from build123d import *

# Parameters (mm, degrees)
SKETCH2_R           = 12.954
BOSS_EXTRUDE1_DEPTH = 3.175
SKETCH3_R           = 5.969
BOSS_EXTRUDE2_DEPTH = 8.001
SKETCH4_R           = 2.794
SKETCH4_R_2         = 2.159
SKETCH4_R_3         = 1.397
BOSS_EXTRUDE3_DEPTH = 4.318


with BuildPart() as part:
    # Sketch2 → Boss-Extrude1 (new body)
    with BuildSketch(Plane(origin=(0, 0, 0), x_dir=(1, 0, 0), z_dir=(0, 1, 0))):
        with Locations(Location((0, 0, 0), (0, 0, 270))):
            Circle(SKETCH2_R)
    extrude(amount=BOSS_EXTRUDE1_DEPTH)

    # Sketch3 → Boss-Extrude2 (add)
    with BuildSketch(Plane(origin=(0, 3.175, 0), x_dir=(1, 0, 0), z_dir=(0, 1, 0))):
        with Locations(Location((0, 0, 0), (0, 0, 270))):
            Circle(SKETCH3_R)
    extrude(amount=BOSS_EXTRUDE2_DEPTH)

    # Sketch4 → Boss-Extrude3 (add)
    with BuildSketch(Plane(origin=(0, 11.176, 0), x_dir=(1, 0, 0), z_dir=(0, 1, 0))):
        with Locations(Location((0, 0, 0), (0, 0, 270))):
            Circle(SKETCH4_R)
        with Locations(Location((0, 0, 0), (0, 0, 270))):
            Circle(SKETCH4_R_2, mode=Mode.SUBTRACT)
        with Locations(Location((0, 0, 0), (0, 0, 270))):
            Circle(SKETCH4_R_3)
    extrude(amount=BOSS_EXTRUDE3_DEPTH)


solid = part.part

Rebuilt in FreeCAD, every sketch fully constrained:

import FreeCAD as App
import Part
import Sketcher

V = App.Vector
Q = App.Units.Quantity

doc = App.newDocument("Part")
body = doc.addObject("PartDesign::Body", "Body")

# Sketch on XZ plane
sketch1 = body.newObject("Sketcher::SketchObject", "Sketch")
sketch1.AttachmentSupport = (doc.getObject("XZ_Plane"), [""])
sketch1.MapMode = "FlatFace"
sketch1.addGeometry(Part.Circle(V(0, 0, 0), V(0, 0, 1), 13), False)
sketch1.addConstraint(Sketcher.Constraint("Coincident", 0, 3, -1, 1))
sketch1.addConstraint(Sketcher.Constraint("Diameter", 0, Q("1.02 in")))
pad1 = body.newObject("PartDesign::Pad", "Pad")
pad1.Profile = sketch1
pad1.Length = Q("0.125 in")
pad1.Reversed = True

# Sketch on XZ plane
sketch2 = body.newObject("Sketcher::SketchObject", "Sketch001")
sketch2.AttachmentSupport = (doc.getObject("XZ_Plane"), [""])
sketch2.MapMode = "FlatFace"
sketch2.AttachmentOffset = App.Placement(V(0, 0, -0.125 * 25.4), App.Rotation())
sketch2.addGeometry(Part.Circle(V(0, 0, 0), V(0, 0, 1), 6), False)
sketch2.addConstraint(Sketcher.Constraint("Coincident", 0, 3, -1, 1))
sketch2.addConstraint(Sketcher.Constraint("Diameter", 0, Q("0.47 in")))
pad2 = body.newObject("PartDesign::Pad", "Pad001")
pad2.Profile = sketch2
pad2.Length = Q("0.315 in")
pad2.Reversed = True

# Sketch on XZ plane
sketch3 = body.newObject("Sketcher::SketchObject", "Sketch002")
sketch3.AttachmentSupport = (doc.getObject("XZ_Plane"), [""])
sketch3.MapMode = "FlatFace"
sketch3.AttachmentOffset = App.Placement(V(0, 0, -0.44 * 25.4), App.Rotation())
sketch3.addGeometry(Part.Circle(V(0, 0, 0), V(0, 0, 1), 2.8), False)
sketch3.addGeometry(Part.Circle(V(0, 0, 0), V(0, 0, 1), 2.2), False)
sketch3.addGeometry(Part.Circle(V(0, 0, 0), V(0, 0, 1), 1.4), False)
sketch3.addConstraint(Sketcher.Constraint("Coincident", 0, 3, -1, 1))
sketch3.addConstraint(Sketcher.Constraint("Coincident", 1, 3, -1, 1))
sketch3.addConstraint(Sketcher.Constraint("Coincident", 2, 3, -1, 1))
sketch3.addConstraint(Sketcher.Constraint("Diameter", 0, Q("0.22 in")))
sketch3.addConstraint(Sketcher.Constraint("Diameter", 1, Q("0.17 in")))
sketch3.addConstraint(Sketcher.Constraint("Diameter", 2, Q("0.11 in")))
pad3 = body.newObject("PartDesign::Pad", "Pad002")
pad3.Profile = sketch3
pad3.Length = Q("0.17 in")
pad3.Reversed = True

doc.recompute()
